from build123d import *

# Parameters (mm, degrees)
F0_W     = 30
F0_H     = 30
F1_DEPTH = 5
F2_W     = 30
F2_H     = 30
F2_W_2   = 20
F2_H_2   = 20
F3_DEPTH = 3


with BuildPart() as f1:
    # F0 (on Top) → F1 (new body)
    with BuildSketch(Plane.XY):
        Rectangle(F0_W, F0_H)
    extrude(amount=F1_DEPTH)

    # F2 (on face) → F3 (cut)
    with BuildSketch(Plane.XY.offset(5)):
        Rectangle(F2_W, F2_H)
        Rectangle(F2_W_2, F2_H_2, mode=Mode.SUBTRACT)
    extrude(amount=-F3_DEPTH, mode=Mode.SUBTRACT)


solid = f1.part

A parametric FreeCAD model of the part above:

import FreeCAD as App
import Part
import Sketcher


def add_polygon(sketch, points):
    """Adds a closed chain of lines whose ends are joined by coincident constraints."""
    first, n = sketch.GeometryCount, len(points)
    for a, b in zip(points, points[1:] + points[:1]):
        sketch.addGeometry(Part.LineSegment(App.Vector(*a, 0), App.Vector(*b, 0)), False)
    for i in range(n):
        sketch.addConstraint(Sketcher.Constraint("Coincident", first + i, 2, first + (i + 1) % n, 1))

doc = App.newDocument("Part")
body = doc.addObject("PartDesign::Body", "Body")

sketch1 = body.newObject("Sketcher::SketchObject", "Sketch")
sketch1.AttachmentSupport = (doc.getObject("XY_Plane"), [""])
sketch1.MapMode = "FlatFace"
add_polygon(sketch1, [(-15, 15), (-15, -15), (15, -15), (15, 15)])
sketch1.addConstraint([
    Sketcher.Constraint("Vertical", 0),
    Sketcher.Constraint("Horizontal", 1),
    Sketcher.Constraint("Vertical", 2),
    Sketcher.Constraint("Horizontal", 3),
    Sketcher.Constraint("Symmetric", 0, 2, 2, 2, -1, 1),
    Sketcher.Constraint("Equal", 3, 0),
    Sketcher.Constraint("DistanceX", 1, 1, 1, 2, 30.0),
])
pad1 = body.newObject("PartDesign::Pad", "Pad")
pad1.Profile = sketch1
pad1.Length = 5

sketch2 = body.newObject("Sketcher::SketchObject", "Sketch001")
sketch2.AttachmentSupport = (doc.getObject("XY_Plane"), [""])
sketch2.MapMode = "FlatFace"
sketch2.AttachmentOffset = App.Placement(App.Vector(0, 0, 5), App.Rotation())
add_polygon(sketch2, [(-15, 15), (-15, -15), (15, -15), (15, 15)])
add_polygon(sketch2, [(10, -10), (-10, -10), (-10, 10), (10, 10)])
sketch2.addConstraint([
    Sketcher.Constraint("Vertical", 0),
    Sketcher.Constraint("Horizontal", 1),
    Sketcher.Constraint("Vertical", 2),
    Sketcher.Constraint("Horizontal", 3),
    Sketcher.Constraint("Horizontal", 4),
    Sketcher.Constraint("Vertical", 5),
    Sketcher.Constraint("Horizontal", 6),
    Sketcher.Constraint("Vertical", 7),
    Sketcher.Constraint("Symmetric", 0, 2, 2, 2, -1, 1),
    Sketcher.Constraint("Symmetric", 4, 2, 6, 2, -1, 1),
    Sketcher.Constraint("Equal", 3, 0),
    Sketcher.Constraint("Equal", 6, 5),
    Sketcher.Constraint("DistanceX", 1, 1, 1, 2, 30.0),
    Sketcher.Constraint("DistanceX", 4, 2, 4, 1, 20.0),
])
pocket1 = body.newObject("PartDesign::Pocket", "Pocket")
pocket1.Profile = sketch2
pocket1.Length = 3

doc.recompute()
